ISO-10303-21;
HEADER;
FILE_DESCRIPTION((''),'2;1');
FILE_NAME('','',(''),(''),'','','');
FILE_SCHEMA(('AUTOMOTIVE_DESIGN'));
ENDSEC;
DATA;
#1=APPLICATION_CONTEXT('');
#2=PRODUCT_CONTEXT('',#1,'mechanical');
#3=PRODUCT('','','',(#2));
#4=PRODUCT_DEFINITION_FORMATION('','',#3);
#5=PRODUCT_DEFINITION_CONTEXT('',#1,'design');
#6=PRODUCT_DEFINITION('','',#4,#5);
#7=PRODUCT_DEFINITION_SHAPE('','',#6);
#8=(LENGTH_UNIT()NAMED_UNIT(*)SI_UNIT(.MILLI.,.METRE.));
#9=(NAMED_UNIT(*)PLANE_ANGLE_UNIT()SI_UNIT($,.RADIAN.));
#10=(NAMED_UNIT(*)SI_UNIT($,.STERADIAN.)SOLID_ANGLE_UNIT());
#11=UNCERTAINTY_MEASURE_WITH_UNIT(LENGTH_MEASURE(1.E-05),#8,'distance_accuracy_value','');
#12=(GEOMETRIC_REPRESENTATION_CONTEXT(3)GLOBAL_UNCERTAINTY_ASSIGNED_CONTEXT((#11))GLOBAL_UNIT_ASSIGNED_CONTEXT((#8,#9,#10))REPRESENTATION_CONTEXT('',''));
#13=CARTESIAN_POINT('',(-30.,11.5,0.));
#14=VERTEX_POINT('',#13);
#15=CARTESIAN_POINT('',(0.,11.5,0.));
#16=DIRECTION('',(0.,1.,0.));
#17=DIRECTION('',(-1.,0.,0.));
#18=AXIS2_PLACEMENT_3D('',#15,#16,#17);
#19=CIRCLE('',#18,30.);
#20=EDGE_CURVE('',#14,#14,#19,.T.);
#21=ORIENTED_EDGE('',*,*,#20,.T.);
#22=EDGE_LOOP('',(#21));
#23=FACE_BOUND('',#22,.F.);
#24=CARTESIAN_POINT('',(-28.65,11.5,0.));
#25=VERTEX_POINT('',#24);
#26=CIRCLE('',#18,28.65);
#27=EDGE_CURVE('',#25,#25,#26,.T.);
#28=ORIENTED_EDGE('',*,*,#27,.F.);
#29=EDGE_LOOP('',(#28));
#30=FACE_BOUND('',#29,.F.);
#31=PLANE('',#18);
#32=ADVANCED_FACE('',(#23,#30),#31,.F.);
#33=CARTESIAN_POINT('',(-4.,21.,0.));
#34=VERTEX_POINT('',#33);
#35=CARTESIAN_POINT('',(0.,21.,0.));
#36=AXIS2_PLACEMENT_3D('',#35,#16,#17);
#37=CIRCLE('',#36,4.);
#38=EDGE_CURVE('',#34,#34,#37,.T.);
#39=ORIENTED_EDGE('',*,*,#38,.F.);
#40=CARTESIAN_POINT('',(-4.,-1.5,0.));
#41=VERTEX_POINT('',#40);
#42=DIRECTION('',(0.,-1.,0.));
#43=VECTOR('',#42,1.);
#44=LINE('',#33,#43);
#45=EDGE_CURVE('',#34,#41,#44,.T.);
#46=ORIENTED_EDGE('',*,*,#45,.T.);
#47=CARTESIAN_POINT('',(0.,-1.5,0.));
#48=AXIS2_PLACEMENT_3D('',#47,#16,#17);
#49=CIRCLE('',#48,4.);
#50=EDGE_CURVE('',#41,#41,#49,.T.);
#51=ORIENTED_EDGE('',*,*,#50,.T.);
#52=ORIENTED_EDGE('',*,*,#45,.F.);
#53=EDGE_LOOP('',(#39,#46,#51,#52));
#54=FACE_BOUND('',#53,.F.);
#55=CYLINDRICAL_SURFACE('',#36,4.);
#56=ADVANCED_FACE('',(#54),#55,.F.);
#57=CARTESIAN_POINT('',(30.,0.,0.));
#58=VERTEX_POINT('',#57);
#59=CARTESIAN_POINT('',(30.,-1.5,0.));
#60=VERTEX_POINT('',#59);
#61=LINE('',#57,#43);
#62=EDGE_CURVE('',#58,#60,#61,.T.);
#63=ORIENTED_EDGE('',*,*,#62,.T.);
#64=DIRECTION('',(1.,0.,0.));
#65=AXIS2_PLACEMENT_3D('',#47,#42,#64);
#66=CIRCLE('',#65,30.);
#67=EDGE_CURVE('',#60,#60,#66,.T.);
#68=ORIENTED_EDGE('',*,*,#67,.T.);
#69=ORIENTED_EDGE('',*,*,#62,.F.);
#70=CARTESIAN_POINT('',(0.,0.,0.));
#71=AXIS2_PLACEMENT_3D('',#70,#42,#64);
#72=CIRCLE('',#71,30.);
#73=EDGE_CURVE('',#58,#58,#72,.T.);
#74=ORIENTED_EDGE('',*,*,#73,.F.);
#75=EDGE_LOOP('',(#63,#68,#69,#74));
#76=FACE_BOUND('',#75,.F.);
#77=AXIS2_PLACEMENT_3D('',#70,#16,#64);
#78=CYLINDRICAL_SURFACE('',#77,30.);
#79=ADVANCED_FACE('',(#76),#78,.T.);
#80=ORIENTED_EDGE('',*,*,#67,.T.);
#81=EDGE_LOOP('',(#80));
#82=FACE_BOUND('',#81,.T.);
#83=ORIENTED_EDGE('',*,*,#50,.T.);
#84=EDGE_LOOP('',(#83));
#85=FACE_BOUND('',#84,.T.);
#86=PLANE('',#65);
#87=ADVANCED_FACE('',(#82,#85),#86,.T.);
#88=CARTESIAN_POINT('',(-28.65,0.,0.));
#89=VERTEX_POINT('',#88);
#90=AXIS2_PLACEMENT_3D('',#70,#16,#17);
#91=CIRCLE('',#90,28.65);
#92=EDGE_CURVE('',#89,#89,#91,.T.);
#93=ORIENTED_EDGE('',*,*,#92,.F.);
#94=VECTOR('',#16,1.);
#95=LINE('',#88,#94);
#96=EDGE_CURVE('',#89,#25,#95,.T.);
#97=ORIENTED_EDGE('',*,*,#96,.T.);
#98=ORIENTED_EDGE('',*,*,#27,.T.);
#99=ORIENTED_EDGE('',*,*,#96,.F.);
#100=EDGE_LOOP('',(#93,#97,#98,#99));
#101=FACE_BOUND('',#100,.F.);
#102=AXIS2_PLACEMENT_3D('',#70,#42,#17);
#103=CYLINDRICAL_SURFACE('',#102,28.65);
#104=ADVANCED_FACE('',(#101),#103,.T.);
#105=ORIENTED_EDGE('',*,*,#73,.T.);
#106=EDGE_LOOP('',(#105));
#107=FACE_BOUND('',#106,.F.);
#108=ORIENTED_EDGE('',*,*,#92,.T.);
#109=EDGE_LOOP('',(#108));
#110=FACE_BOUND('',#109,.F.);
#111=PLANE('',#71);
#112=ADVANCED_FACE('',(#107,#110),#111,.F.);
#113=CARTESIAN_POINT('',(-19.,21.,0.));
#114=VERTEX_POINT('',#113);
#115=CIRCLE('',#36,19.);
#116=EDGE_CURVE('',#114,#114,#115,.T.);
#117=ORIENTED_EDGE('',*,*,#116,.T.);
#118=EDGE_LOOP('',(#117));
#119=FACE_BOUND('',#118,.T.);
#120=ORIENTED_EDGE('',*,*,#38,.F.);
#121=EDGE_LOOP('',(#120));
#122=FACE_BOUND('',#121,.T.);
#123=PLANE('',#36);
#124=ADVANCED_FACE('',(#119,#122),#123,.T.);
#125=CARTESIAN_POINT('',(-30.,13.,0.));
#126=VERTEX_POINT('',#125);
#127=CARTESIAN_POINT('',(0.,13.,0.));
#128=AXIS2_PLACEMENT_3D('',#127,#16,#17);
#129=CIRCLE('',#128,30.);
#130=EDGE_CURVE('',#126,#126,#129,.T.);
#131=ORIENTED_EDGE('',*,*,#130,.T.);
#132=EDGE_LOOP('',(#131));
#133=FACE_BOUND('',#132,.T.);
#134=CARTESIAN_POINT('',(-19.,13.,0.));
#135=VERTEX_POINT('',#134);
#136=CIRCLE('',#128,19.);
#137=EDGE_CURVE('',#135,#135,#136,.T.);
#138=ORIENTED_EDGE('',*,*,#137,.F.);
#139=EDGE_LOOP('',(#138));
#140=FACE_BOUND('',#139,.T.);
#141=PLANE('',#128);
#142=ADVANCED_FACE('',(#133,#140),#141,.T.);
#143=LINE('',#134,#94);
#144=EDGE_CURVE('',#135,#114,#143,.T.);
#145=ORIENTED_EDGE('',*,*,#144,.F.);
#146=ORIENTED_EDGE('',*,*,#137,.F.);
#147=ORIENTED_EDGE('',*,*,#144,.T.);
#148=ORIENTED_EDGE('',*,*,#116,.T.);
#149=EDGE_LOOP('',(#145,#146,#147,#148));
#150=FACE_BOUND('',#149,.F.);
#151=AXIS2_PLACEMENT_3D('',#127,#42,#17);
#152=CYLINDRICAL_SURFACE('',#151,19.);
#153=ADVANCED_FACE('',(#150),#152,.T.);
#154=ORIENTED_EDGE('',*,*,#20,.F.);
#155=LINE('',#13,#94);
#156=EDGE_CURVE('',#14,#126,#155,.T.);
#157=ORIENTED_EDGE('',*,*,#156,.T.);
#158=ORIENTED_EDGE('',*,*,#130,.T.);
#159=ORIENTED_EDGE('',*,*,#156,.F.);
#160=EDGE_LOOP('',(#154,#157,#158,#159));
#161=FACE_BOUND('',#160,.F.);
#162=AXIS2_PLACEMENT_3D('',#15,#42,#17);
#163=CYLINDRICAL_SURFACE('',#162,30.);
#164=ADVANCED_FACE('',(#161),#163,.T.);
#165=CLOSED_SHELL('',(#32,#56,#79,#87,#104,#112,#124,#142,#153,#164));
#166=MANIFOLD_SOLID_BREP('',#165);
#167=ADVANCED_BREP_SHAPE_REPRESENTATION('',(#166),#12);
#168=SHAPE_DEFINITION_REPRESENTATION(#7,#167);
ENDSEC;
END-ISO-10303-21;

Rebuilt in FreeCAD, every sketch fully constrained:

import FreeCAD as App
import Part
import Sketcher

V = App.Vector

doc = App.newDocument("Part")
body = doc.addObject("PartDesign::Body", "Body")

sketch1 = body.newObject("Sketcher::SketchObject", "Sketch")
sketch1.AttachmentSupport = (doc.getObject("XZ_Plane"), [""])
sketch1.MapMode = "FlatFace"
sketch1.addGeometry(Part.Circle(V(0, 0, 0), V(0, 0, 1), 30), False)
sketch1.addConstraint([
    Sketcher.Constraint("Coincident", 0, 3, -1, 1),
    Sketcher.Constraint("Diameter", 0, 60.0),
])
pad1 = body.newObject("PartDesign::Pad", "Pad")
pad1.Profile = sketch1
pad1.Length = 1.5

sketch2 = body.newObject("Sketcher::SketchObject", "Sketch001")
sketch2.AttachmentSupport = (doc.getObject("XZ_Plane"), [""])
sketch2.MapMode = "FlatFace"
sketch2.addGeometry(Part.Circle(V(0, 0, 0), V(0, 0, 1), 29), False)
sketch2.addConstraint([
    Sketcher.Constraint("Coincident", 0, 3, -1, 1),
    Sketcher.Constraint("Diameter", 0, 57.3),
])
pad2 = body.newObject("PartDesign::Pad", "Pad001")
pad2.Profile = sketch2
pad2.Length = 11.5
pad2.Reversed = True

sketch3 = body.newObject("Sketcher::SketchObject", "Sketch002")
sketch3.AttachmentSupport = (doc.getObject("XZ_Plane"), [""])
sketch3.MapMode = "FlatFace"
sketch3.AttachmentOffset = App.Placement(V(0, 0, -11.5), App.Rotation())
sketch3.addGeometry(Part.Circle(V(0, 0, 0), V(0, 0, 1), 30), False)
sketch3.addConstraint([
    Sketcher.Constraint("Coincident", 0, 3, -1, 1),
    Sketcher.Constraint("Diameter", 0, 60.0),
])
pad3 = body.newObject("PartDesign::Pad", "Pad002")
pad3.Profile = sketch3
pad3.Length = 1.5
pad3.Reversed = True

sketch4 = body.newObject("Sketcher::SketchObject", "Sketch003")
sketch4.AttachmentSupport = (doc.getObject("XZ_Plane"), [""])
sketch4.MapMode = "FlatFace"
sketch4.AttachmentOffset = App.Placement(V(0, 0, -13), App.Rotation())
sketch4.addGeometry(Part.Circle(V(0, 0, 0), V(0, 0, 1), 19), False)
sketch4.addConstraint([
    Sketcher.Constraint("Coincident", 0, 3, -1, 1),
    Sketcher.Constraint("Diameter", 0, 38.0),
])
pad4 = body.newObject("PartDesign::Pad", "Pad003")
pad4.Profile = sketch4
pad4.Length = 8
pad4.Reversed = True

sketch5 = body.newObject("Sketcher::SketchObject", "Sketch004")
sketch5.AttachmentSupport = (doc.getObject("XZ_Plane"), [""])
sketch5.MapMode = "FlatFace"
sketch5.AttachmentOffset = App.Placement(V(0, 0, -21), App.Rotation())
sketch5.addGeometry(Part.Circle(V(0, 0, 0), V(0, 0, 1), 4), False)
sketch5.addConstraint([
    Sketcher.Constraint("Coincident", 0, 3, -1, 1),
    Sketcher.Constraint("Diameter", 0, 8.0),
])
pocket1 = body.newObject("PartDesign::Pocket", "Pocket")
pocket1.Profile = sketch5
pocket1.Type = "ThroughAll"
pocket1.Reversed = True

doc.recompute()
